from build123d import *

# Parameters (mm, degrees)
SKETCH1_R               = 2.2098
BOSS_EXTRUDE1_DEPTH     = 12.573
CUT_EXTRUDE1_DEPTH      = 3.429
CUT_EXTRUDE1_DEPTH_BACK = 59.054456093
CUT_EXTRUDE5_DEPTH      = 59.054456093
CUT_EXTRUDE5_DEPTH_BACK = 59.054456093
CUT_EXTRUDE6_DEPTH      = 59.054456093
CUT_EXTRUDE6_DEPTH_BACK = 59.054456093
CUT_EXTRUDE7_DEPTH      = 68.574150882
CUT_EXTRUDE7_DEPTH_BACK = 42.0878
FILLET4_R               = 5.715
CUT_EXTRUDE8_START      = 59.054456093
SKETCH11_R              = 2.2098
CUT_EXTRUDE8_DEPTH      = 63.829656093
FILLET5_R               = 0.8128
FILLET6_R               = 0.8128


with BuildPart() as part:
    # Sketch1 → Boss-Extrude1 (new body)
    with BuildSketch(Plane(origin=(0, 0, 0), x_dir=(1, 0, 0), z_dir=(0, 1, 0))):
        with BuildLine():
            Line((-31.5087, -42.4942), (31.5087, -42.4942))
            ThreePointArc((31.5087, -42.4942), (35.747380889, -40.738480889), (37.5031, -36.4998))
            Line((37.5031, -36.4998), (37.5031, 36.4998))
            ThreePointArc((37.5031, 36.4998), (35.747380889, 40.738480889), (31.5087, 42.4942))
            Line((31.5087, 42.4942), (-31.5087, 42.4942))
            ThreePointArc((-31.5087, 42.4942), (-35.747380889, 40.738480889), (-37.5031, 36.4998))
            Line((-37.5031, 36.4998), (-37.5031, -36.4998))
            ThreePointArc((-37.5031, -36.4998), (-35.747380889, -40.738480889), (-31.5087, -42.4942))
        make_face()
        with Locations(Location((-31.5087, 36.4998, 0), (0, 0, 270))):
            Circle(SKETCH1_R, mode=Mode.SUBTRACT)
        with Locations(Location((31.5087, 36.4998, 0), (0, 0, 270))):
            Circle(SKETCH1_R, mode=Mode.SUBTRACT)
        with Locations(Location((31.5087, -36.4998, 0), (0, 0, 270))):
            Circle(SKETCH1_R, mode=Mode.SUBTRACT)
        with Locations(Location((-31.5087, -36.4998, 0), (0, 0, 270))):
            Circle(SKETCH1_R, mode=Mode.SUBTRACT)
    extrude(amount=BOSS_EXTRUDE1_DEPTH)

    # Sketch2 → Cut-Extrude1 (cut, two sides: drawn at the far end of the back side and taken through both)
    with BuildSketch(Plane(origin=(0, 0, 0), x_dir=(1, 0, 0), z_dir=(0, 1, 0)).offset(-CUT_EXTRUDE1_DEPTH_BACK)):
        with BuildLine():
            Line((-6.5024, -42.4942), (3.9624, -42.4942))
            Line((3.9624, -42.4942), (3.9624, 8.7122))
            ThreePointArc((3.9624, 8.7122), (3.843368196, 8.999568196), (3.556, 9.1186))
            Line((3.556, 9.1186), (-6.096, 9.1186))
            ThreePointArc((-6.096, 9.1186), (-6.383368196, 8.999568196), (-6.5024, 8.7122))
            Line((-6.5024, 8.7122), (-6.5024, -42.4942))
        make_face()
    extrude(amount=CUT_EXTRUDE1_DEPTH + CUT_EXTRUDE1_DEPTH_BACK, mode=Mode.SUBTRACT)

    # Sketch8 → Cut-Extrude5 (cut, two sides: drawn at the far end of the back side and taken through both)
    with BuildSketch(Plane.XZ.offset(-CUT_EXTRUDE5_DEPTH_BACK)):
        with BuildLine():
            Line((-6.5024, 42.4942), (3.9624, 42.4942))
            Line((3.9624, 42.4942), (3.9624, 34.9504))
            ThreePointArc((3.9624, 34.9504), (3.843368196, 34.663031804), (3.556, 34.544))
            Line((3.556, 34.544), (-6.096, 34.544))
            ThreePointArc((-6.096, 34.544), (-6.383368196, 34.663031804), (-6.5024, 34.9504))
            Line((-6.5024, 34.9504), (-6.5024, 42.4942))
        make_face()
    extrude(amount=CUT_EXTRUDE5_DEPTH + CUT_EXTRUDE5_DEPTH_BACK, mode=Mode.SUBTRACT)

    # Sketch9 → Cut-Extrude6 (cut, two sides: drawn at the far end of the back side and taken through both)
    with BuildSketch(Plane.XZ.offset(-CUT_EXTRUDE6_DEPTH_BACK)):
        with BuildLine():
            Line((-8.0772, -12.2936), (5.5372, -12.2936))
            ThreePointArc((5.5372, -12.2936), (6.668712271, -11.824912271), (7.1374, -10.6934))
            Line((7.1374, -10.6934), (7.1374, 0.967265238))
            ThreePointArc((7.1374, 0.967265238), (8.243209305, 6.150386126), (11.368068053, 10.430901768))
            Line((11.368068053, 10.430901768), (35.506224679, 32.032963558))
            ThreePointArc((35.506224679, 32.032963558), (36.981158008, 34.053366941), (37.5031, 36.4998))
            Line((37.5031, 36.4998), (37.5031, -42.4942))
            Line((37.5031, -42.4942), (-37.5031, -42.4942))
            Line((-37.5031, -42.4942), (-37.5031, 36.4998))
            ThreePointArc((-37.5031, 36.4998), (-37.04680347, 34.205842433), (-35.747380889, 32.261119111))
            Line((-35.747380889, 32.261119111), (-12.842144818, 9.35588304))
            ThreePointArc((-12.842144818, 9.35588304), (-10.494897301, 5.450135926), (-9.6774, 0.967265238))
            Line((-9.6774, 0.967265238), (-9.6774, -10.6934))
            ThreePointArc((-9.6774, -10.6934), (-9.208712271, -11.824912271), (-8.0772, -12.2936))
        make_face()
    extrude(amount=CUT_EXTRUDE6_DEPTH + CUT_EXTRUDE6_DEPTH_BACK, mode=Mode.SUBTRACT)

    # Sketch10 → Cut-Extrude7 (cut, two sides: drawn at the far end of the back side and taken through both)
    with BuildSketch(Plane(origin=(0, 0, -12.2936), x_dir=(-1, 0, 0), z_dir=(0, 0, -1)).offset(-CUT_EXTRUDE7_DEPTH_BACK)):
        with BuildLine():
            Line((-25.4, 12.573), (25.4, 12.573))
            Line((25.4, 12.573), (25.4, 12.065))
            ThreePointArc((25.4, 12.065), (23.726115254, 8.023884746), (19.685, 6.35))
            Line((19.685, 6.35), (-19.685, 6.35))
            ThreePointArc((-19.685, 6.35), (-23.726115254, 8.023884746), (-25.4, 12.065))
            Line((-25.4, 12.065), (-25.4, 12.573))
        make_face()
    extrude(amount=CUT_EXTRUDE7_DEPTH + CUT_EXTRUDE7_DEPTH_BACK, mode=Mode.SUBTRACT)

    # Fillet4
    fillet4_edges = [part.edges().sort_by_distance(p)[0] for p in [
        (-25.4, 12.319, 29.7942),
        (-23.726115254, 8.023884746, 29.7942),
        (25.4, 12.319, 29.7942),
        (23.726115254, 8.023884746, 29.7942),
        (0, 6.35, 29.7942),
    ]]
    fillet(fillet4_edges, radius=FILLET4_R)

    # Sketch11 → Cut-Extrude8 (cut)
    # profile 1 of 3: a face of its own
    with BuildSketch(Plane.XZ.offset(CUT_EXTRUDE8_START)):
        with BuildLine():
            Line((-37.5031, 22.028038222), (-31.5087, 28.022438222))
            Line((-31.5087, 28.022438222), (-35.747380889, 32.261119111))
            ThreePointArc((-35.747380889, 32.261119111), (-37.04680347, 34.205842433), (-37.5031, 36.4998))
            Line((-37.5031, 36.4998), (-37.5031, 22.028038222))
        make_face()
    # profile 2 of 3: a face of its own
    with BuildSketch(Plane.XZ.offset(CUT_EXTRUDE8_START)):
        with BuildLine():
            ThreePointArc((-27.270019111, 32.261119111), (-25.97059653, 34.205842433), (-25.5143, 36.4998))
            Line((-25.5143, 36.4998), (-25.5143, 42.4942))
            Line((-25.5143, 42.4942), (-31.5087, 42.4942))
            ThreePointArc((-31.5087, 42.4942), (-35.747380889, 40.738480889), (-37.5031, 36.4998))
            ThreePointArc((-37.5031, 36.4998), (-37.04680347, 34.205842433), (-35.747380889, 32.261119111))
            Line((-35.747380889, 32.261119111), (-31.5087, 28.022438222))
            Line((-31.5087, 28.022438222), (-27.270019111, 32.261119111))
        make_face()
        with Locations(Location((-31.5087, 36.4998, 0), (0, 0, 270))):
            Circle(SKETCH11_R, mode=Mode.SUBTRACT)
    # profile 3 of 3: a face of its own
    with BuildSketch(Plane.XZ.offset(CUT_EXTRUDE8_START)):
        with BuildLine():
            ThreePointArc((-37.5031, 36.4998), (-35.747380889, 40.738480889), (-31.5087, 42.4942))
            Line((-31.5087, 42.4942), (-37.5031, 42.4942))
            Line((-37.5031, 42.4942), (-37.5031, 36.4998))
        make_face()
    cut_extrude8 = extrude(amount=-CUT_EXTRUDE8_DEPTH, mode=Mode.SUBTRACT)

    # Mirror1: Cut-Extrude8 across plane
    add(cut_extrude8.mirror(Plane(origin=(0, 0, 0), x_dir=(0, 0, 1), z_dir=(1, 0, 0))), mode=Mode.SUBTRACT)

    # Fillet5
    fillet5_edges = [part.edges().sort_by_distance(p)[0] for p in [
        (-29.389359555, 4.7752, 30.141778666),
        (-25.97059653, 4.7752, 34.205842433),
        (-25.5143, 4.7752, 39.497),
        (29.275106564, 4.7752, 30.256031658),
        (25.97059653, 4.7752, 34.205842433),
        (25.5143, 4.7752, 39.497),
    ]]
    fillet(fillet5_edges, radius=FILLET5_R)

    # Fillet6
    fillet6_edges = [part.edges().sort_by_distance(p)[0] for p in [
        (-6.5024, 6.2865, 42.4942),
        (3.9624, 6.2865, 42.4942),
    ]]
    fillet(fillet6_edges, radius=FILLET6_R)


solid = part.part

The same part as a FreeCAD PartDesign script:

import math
import FreeCAD as App
import Part
import Sketcher
from FreeCAD import Vector
Q = App.Units.Quantity


def edges_at(feature, points):
    """Names of the edges that pass closest to the given points."""
    edges = feature.Shape.Edges
    near = lambda p: min(range(len(edges)), key=lambda i: edges[i].distToShape(Part.Vertex(*p))[0])
    return sorted({f"Edge{near(p) + 1}" for p in points})

doc = App.newDocument("Part")
body = doc.addObject("PartDesign::Body", "Body")

sketch1 = doc.addObject("Sketcher::SketchObject", "Sketch")
body.addObject(sketch1)
sketch1.AttachmentSupport = (doc.XZ_Plane, [""])
sketch1.MapMode = "FlatFace"
sketch1.addGeometry([
    Part.LineSegment(Vector(-31.5, 42.5, 0), Vector(31.5, 42.5, 0)),
    Part.ArcOfCircle(Part.Circle(Vector(31.5, 36.5, 0), Vector(0, 0, 1), 6), math.radians(0), math.radians(90)),
    Part.LineSegment(Vector(37.5, 36.5, 0), Vector(37.5, -36.5, 0)),
    Part.ArcOfCircle(Part.Circle(Vector(31.5, -36.5, 0), Vector(0, 0, 1), 6), math.radians(-90), math.radians(0)),
    Part.LineSegment(Vector(31.5, -42.5, 0), Vector(-31.5, -42.5, 0)),
    Part.ArcOfCircle(Part.Circle(Vector(-31.5, -36.5, 0), Vector(0, 0, 1), 6), math.radians(180), math.radians(270)),
    Part.LineSegment(Vector(-37.5, -36.5, 0), Vector(-37.5, 36.5, 0)),
    Part.ArcOfCircle(Part.Circle(Vector(-31.5, 36.5, 0), Vector(0, 0, 1), 6), math.radians(90), math.radians(180)),
    Part.Circle(Vector(-31.5, 36.5, 0), Vector(0, 0, 1), 2.2),
    Part.Circle(Vector(31.5, 36.5, 0), Vector(0, 0, 1), 2.2),
    Part.Circle(Vector(-31.5, -36.5, 0), Vector(0, 0, 1), 2.2),
    Part.Circle(Vector(31.5, -36.5, 0), Vector(0, 0, 1), 2.2),
], False)
sketch1.addConstraint([
    Sketcher.Constraint("Tangent", 0, 2, 1, 2),
    Sketcher.Constraint("Tangent", 1, 1, 2, 1),
    Sketcher.Constraint("Tangent", 2, 2, 3, 2),
    Sketcher.Constraint("Tangent", 3, 1, 4, 1),
    Sketcher.Constraint("Tangent", 4, 2, 5, 2),
    Sketcher.Constraint("Tangent", 5, 1, 6, 1),
    Sketcher.Constraint("Tangent", 6, 2, 7, 2),
    Sketcher.Constraint("Tangent", 7, 1, 0, 1),
    Sketcher.Constraint("Horizontal", 0),
    Sketcher.Constraint("Vertical", 2),
    Sketcher.Constraint("Horizontal", 4),
    Sketcher.Constraint("Vertical", 6),
    Sketcher.Constraint("Coincident", 8, 3, 7, 3),
    Sketcher.Constraint("Coincident", 9, 3, 1, 3),
    Sketcher.Constraint("Coincident", 10, 3, 5, 3),
    Sketcher.Constraint("Coincident", 11, 3, 3, 3),
    Sketcher.Constraint("Equal", 1, 3),
    Sketcher.Constraint("Equal", 3, 5),
    Sketcher.Constraint("Equal", 5, 7),
    Sketcher.Constraint("Equal", 8, 9),
    Sketcher.Constraint("Equal", 9, 10),
    Sketcher.Constraint("Equal", 10, 11),
    Sketcher.Constraint("Symmetric", 1, 3, 5, 3, -1, 1),
    Sketcher.Constraint("Diameter", 8, Q("0.174 in")),
    Sketcher.Constraint("Radius", 1, Q("0.236 in")),
    Sketcher.Constraint("DistanceX", 0, 1, 0, 2, Q("2.481 in")),
    Sketcher.Constraint("DistanceY", 2, 2, 2, 1, Q("2.874 in")),
])
pad1 = doc.addObject("PartDesign::Pad", "Pad")
body.addObject(pad1)
pad1.Profile = sketch1
pad1.Length = Q("0.495 in")
pad1.Reversed = True

sketch2 = doc.addObject("Sketcher::SketchObject", "Sketch001")
body.addObject(sketch2)
sketch2.AttachmentSupport = (doc.XZ_Plane, [""])
sketch2.MapMode = "FlatFace"
sketch2.addGeometry([
    Part.LineSegment(Vector(-6.5, 42.49, 0), Vector(3.96, 42.49, 0)),
    Part.LineSegment(Vector(3.96, 42.49, 0), Vector(3.96, -8.71, 0)),
    Part.ArcOfCircle(Part.Circle(Vector(3.56, -8.71, 0), Vector(0, 0, 1), 0.41), math.radians(-90), math.radians(0)),
    Part.LineSegment(Vector(3.56, -9.12, 0), Vector(-6.1, -9.12, 0)),
    Part.ArcOfCircle(Part.Circle(Vector(-6.1, -8.71, 0), Vector(0, 0, 1), 0.41), math.radians(180), math.radians(270)),
    Part.LineSegment(Vector(-6.5, -8.71, 0), Vector(-6.5, 42.49, 0)),
], False)
sketch2.addConstraint([
    Sketcher.Constraint("Coincident", 0, 2, 1, 1),
    Sketcher.Constraint("Tangent", 1, 2, 2, 2),
    Sketcher.Constraint("Tangent", 2, 1, 3, 1),
    Sketcher.Constraint("Tangent", 3, 2, 4, 2),
    Sketcher.Constraint("Tangent", 4, 1, 5, 1),
    Sketcher.Constraint("Coincident", 5, 2, 0, 1),
    Sketcher.Constraint("Horizontal", 0),
    Sketcher.Constraint("Vertical", 1),
    Sketcher.Constraint("Horizontal", 3),
    Sketcher.Constraint("Vertical", 5),
    Sketcher.Constraint("Equal", 2, 4),
    Sketcher.Constraint("Radius", 2, Q("0.016 in")),
    Sketcher.Constraint("DistanceX", 3, 2, 3, 1, Q("0.38 in")),
    Sketcher.Constraint("DistanceY", 1, 2, 1, 1, Q("2.016 in")),
    Sketcher.Constraint("DistanceX", -1, 1, 2, 3, Q("0.14 in")),
    Sketcher.Constraint("DistanceY", 2, 3, -1, 1, Q("0.343 in")),
])
pocket1 = doc.addObject("PartDesign::Pocket", "Pocket")
body.addObject(pocket1)
pocket1.Profile = sketch2
pocket1.Type = "TwoLengths"
pocket1.Length = Q("0.135 in")
pocket1.Length2 = 59.054456

sketch3 = doc.addObject("Sketcher::SketchObject", "Sketch002")
body.addObject(sketch3)
sketch3.AttachmentSupport = (doc.XZ_Plane, [""])
sketch3.MapMode = "FlatFace"
sketch3.addGeometry([
    Part.LineSegment(Vector(3.96, 42.49, 0), Vector(-6.5, 42.49, 0)),
    Part.LineSegment(Vector(-6.5, 42.49, 0), Vector(-6.5, 34.95, 0)),
    Part.ArcOfCircle(Part.Circle(Vector(-6.1, 34.95, 0), Vector(0, 0, 1), 0.41), math.radians(180), math.radians(270)),
    Part.LineSegment(Vector(-6.1, 34.54, 0), Vector(3.56, 34.54, 0)),
    Part.ArcOfCircle(Part.Circle(Vector(3.56, 34.95, 0), Vector(0, 0, 1), 0.41), math.radians(-90), math.radians(0)),
    Part.LineSegment(Vector(3.96, 34.95, 0), Vector(3.96, 42.49, 0)),
], False)
sketch3.addConstraint([
    Sketcher.Constraint("Coincident", 0, 2, 1, 1),
    Sketcher.Constraint("Tangent", 1, 2, 2, 1),
    Sketcher.Constraint("Tangent", 2, 2, 3, 1),
    Sketcher.Constraint("Tangent", 3, 2, 4, 1),
    Sketcher.Constraint("Tangent", 4, 2, 5, 1),
    Sketcher.Constraint("Coincident", 5, 2, 0, 1),
    Sketcher.Constraint("Horizontal", 0),
    Sketcher.Constraint("Vertical", 1),
    Sketcher.Constraint("Horizontal", 3),
    Sketcher.Constraint("Vertical", 5),
    Sketcher.Constraint("Equal", 2, 4),
    Sketcher.Constraint("Radius", 2, Q("0.016 in")),
    Sketcher.Constraint("DistanceX", 3, 1, 3, 2, Q("0.38 in")),
    Sketcher.Constraint("DistanceY", 1, 2, 1, 1, Q("0.297 in")),
    Sketcher.Constraint("DistanceX", 2, 3, -1, 1, Q("0.24 in")),
    Sketcher.Constraint("DistanceY", -1, 1, 2, 2, Q("1.36 in")),
])
pocket2 = doc.addObject("PartDesign::Pocket", "Pocket001")
body.addObject(pocket2)
pocket2.Profile = sketch3
pocket2.Type = "ThroughAll"
pocket2.Midplane = True

sketch4 = doc.addObject("Sketcher::SketchObject", "Sketch003")
body.addObject(sketch4)
sketch4.AttachmentSupport = (doc.XZ_Plane, [""])
sketch4.MapMode = "FlatFace"
sketch4.addGeometry([
    Part.LineSegment(Vector(5.5, -12.3, 0), Vector(-8.1, -12.3, 0)),
    Part.ArcOfCircle(Part.Circle(Vector(-8.1, -10.7, 0), Vector(0, 0, 1), 1.6), math.radians(-180), math.radians(-90)),
    Part.LineSegment(Vector(-9.7, -10.7, 0), Vector(-9.7, 1, 0)),
    Part.ArcOfCircle(Part.Circle(Vector(-22.4, 1, 0), Vector(0, 0, 1), 12.7), math.radians(0), math.radians(41)),
    Part.LineSegment(Vector(-12.8, 9.4, 0), Vector(-35.7, 32.3, 0)),
    Part.ArcOfCircle(Part.Circle(Vector(-31.5, 36.5, 0), Vector(0, 0, 1), 6), math.radians(180), math.radians(225)),
    Part.LineSegment(Vector(-37.5, 36.5, 0), Vector(-37.5, -42.5, 0)),
    Part.LineSegment(Vector(-37.5, -42.5, 0), Vector(37.5, -42.5, 0)),
    Part.LineSegment(Vector(37.5, -42.5, 0), Vector(37.5, 36.5, 0)),
    Part.ArcOfCircle(Part.Circle(Vector(31.5, 36.5, 0), Vector(0, 0, 1), 6), math.radians(-48), math.radians(0)),
    Part.LineSegment(Vector(35.5, 32, 0), Vector(11.4, 10.4, 0)),
    Part.ArcOfCircle(Part.Circle(Vector(19.8, 1, 0), Vector(0, 0, 1), 12.7), math.radians(132), math.radians(180)),
    Part.LineSegment(Vector(7.1, 1, 0), Vector(7.1, -10.7, 0)),
    Part.ArcOfCircle(Part.Circle(Vector(5.5, -10.7, 0), Vector(0, 0, 1), 1.6), math.radians(-90), math.radians(0)),
], False)
sketch4.addConstraint([
    Sketcher.Constraint("Tangent", 0, 2, 1, 2),
    Sketcher.Constraint("Tangent", 1, 1, 2, 1),
    Sketcher.Constraint("Tangent", 2, 2, 3, 1),
    Sketcher.Constraint("Coincident", 3, 2, 4, 1),
    Sketcher.Constraint("Tangent", 4, 2, 5, 2),
    Sketcher.Constraint("Tangent", 5, 1, 6, 1),
    Sketcher.Constraint("Coincident", 6, 2, 7, 1),
    Sketcher.Constraint("Coincident", 7, 2, 8, 1),
    Sketcher.Constraint("Tangent", 8, 2, 9, 2),
    Sketcher.Constraint("Tangent", 9, 1, 10, 1),
    Sketcher.Constraint("Tangent", 10, 2, 11, 1),
    Sketcher.Constraint("Tangent", 11, 2, 12, 1),
    Sketcher.Constraint("Tangent", 12, 2, 13, 2),
    Sketcher.Constraint("Tangent", 13, 1, 0, 1),
    Sketcher.Constraint("Horizontal", 0),
    Sketcher.Constraint("Vertical", 2),
    Sketcher.Constraint("Vertical", 6),
    Sketcher.Constraint("Horizontal", 7),
    Sketcher.Constraint("Vertical", 8),
    Sketcher.Constraint("Vertical", 12),
    Sketcher.Constraint("Equal", 5, 9),
    Sketcher.Constraint("Equal", 3, 11),
    Sketcher.Constraint("Equal", 1, 13),
    Sketcher.Constraint("Symmetric", 5, 3, 9, 3, -2),
    Sketcher.Constraint("Horizontal", 3, 3, 11, 3),
    Sketcher.Constraint("Equal", 4, 10),
    Sketcher.Constraint("Radius", 3, Q("0.5 in")),
    Sketcher.Constraint("Angle", 4, Q("135 deg")),
    Sketcher.Constraint("Radius", 1, Q("0.063 in")),
    Sketcher.Constraint("Radius", 5, Q("0.236 in")),
    Sketcher.Constraint("DistanceY", 6, 2, 6, 1, Q("3.11 in")),
    Sketcher.Constraint("DistanceX", 0, 2, 0, 1, Q("0.536 in")),
    Sketcher.Constraint("DistanceX", 7, 1, 7, 2, Q("2.953 in")),
    Sketcher.Constraint("DistanceX", 1, 3, -1, 1, Q("0.318 in")),
    Sketcher.Constraint("DistanceY", 1, 3, -1, 1, Q("0.421 in")),
    Sketcher.Constraint("DistanceY", -1, 1, 5, 3, Q("1.437 in")),
])
pocket3 = doc.addObject("PartDesign::Pocket", "Pocket002")
body.addObject(pocket3)
pocket3.Profile = sketch4
pocket3.Type = "ThroughAll"
pocket3.Midplane = True

sketch5 = doc.addObject("Sketcher::SketchObject", "Sketch004")
body.addObject(sketch5)
sketch5.AttachmentSupport = (doc.XY_Plane, [""])
sketch5.MapMode = "FlatFace"
sketch5.AttachmentOffset = App.Placement(Vector(0, 0, -0.484 * 25.4), App.Rotation())
sketch5.addGeometry([
    Part.LineSegment(Vector(-25.4, 12.6, 0), Vector(25.4, 12.6, 0)),
    Part.LineSegment(Vector(25.4, 12.6, 0), Vector(25.4, 12.1, 0)),
    Part.ArcOfCircle(Part.Circle(Vector(19.7, 12.1, 0), Vector(0, 0, 1), 5.7), math.radians(-90), math.radians(0)),
    Part.LineSegment(Vector(19.7, 6.3, 0), Vector(-19.7, 6.3, 0)),
    Part.ArcOfCircle(Part.Circle(Vector(-19.7, 12.1, 0), Vector(0, 0, 1), 5.7), math.radians(-180), math.radians(-90)),
    Part.LineSegment(Vector(-25.4, 12.1, 0), Vector(-25.4, 12.6, 0)),
], False)
sketch5.addConstraint([
    Sketcher.Constraint("Coincident", 0, 2, 1, 1),
    Sketcher.Constraint("Tangent", 1, 2, 2, 2),
    Sketcher.Constraint("Tangent", 2, 1, 3, 1),
    Sketcher.Constraint("Tangent", 3, 2, 4, 2),
    Sketcher.Constraint("Tangent", 4, 1, 5, 1),
    Sketcher.Constraint("Coincident", 5, 2, 0, 1),
    Sketcher.Constraint("Horizontal", 0),
    Sketcher.Constraint("Vertical", 1),
    Sketcher.Constraint("Horizontal", 3),
    Sketcher.Constraint("Vertical", 5),
    Sketcher.Constraint("Equal", 2, 4),
    Sketcher.Constraint("DistanceX", 0, 1, 0, 2, Q("2 in")),
    Sketcher.Constraint("DistanceX", -1, 1, 0, 2, Q("1 in")),
    Sketcher.Constraint("Radius", 2, Q("0.225 in")),
    Sketcher.Constraint("DistanceY", 1, 2, 1, 1, Q("0.02 in")),
    Sketcher.Constraint("DistanceY", -1, 1, 2, 1, Q("0.25 in")),
])
pocket4 = doc.addObject("PartDesign::Pocket", "Pocket003")
body.addObject(pocket4)
pocket4.Profile = sketch5
pocket4.Type = "TwoLengths"
pocket4.Length = 68.574151
pocket4.Length2 = Q("1.657 in")
doc.recompute()

fillet = doc.addObject("PartDesign::Fillet", "Fillet")
body.addObject(fillet)
fillet.Base = (pocket4, edges_at(pocket4, [
    (-25.4, 12.319, 29.794),
    (-23.726, 8.024, 29.794),
    (25.4, 12.319, 29.794),
    (23.726, 8.024, 29.794),
    (0, 6.35, 29.794),
]))
fillet.Radius = Q("0.225 in")

sketch6 = doc.addObject("Sketcher::SketchObject", "Sketch005")
body.addObject(sketch6)
sketch6.AttachmentSupport = (doc.XZ_Plane, [""])
sketch6.MapMode = "FlatFace"
sketch6.AttachmentOffset = App.Placement(Vector(0, 0, 59.054456), App.Rotation())
sketch6.addGeometry([
    Part.LineSegment(Vector(-37.5, 22, 0), Vector(-27.3, 32.3, 0)),
    Part.ArcOfCircle(Part.Circle(Vector(-31.5, 36.5, 0), Vector(0, 0, 1), 6), math.radians(-45), math.radians(0)),
    Part.LineSegment(Vector(-25.5, 36.5, 0), Vector(-25.5, 42.5, 0)),
    Part.LineSegment(Vector(-25.5, 42.5, 0), Vector(-37.5, 42.5, 0)),
    Part.LineSegment(Vector(-37.5, 42.5, 0), Vector(-37.5, 22, 0)),
    Part.Circle(Vector(-31.5, 36.5, 0), Vector(0, 0, 1), 2.2),
], False)
sketch6.addConstraint([
    Sketcher.Constraint("Tangent", 0, 2, 1, 1),
    Sketcher.Constraint("Tangent", 1, 2, 2, 1),
    Sketcher.Constraint("Coincident", 2, 2, 3, 1),
    Sketcher.Constraint("Coincident", 3, 2, 4, 1),
    Sketcher.Constraint("Coincident", 4, 2, 0, 1),
    Sketcher.Constraint("Vertical", 2),
    Sketcher.Constraint("Horizontal", 3),
    Sketcher.Constraint("Vertical", 4),
    Sketcher.Constraint("Coincident", 5, 3, 1, 3),
    Sketcher.Constraint("Diameter", 5, Q("0.174 in")),
    Sketcher.Constraint("Angle", 0, Q("45 deg")),
    Sketcher.Constraint("Radius", 1, Q("0.236 in")),
    Sketcher.Constraint("DistanceX", 3, 2, 3, 1, Q("0.472 in")),
    Sketcher.Constraint("DistanceY", 2, 1, 2, 2, Q("0.236 in")),
    Sketcher.Constraint("DistanceY", -1, 1, 1, 3, Q("1.437 in")),
    Sketcher.Constraint("DistanceX", 1, 3, -1, 1, Q("1.2405 in")),
])
pocket5 = doc.addObject("PartDesign::Pocket", "Pocket004")
body.addObject(pocket5)
pocket5.Profile = sketch6
pocket5.Length = 63.829656
doc.recompute()

mirrored = doc.addObject("PartDesign::Mirrored", "Mirrored")
body.addObject(mirrored)
mirrored.Originals = [pocket5]
mirrored.MirrorPlane = (doc.YZ_Plane, [""])
body.Tip = mirrored
doc.recompute()

fillet2 = doc.addObject("PartDesign::Fillet", "Fillet001")
body.addObject(fillet2)
fillet2.Base = (mirrored, edges_at(mirrored, [
    (-29.389, 4.775, 30.142),
    (-25.971, 4.775, 34.206),
    (-25.514, 4.775, 39.497),
    (29.275, 4.775, 30.256),
    (25.971, 4.775, 34.206),
    (25.514, 4.775, 39.497),
]))
fillet2.Radius = Q("0.032 in")
doc.recompute()

fillet3 = doc.addObject("PartDesign::Fillet", "Fillet002")
body.addObject(fillet3)
fillet3.Base = (fillet2, edges_at(fillet2, [(-6.502, 6.287, 42.494), (3.962, 6.287, 42.494)]))
fillet3.Radius = Q("0.032 in")

doc.recompute()
